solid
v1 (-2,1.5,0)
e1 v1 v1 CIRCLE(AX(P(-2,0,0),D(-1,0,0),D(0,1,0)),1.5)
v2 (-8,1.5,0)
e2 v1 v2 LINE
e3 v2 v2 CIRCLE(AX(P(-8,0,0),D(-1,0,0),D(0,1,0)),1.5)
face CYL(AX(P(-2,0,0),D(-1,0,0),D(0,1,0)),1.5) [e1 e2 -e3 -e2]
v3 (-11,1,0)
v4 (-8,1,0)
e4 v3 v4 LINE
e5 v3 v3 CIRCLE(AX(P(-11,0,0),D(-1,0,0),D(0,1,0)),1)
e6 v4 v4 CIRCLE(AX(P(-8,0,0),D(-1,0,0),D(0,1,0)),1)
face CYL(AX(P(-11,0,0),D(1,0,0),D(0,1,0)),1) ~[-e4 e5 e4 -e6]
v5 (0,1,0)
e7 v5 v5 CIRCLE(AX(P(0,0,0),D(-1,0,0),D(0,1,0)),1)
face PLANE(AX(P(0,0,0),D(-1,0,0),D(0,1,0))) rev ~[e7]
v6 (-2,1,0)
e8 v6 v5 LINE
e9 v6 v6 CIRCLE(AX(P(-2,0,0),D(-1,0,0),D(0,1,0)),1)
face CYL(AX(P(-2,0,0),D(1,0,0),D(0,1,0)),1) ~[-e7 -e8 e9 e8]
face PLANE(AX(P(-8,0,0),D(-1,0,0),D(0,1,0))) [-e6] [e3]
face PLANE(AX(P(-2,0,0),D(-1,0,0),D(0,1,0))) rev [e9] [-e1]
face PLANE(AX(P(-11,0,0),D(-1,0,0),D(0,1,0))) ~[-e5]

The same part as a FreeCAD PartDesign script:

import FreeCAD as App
import Part
import Sketcher
from FreeCAD import Vector


def add_polygon(sketch, points):
    """Adds a closed chain of lines whose ends are joined by coincident constraints."""
    first, n = sketch.GeometryCount, len(points)
    for a, b in zip(points, points[1:] + points[:1]):
        sketch.addGeometry(Part.LineSegment(App.Vector(*a, 0), App.Vector(*b, 0)), False)
    for i in range(n):
        sketch.addConstraint(Sketcher.Constraint("Coincident", first + i, 2, first + (i + 1) % n, 1))

doc = App.newDocument("Part")
body = doc.addObject("PartDesign::Body", "Body")

sketch1 = body.newObject("Sketcher::SketchObject", "Sketch")
sketch1.AttachmentSupport = (doc.getObject("XY_Plane"), [""])
sketch1.MapMode = "FlatFace"
add_polygon(sketch1, [(0, 0), (0, 1), (-2, 1), (-2, 1.5), (-8, 1.5), (-8, 1), (-11, 1), (-11, 0)])
sketch1.addConstraint(Sketcher.Constraint("Vertical", 0))
sketch1.addConstraint(Sketcher.Constraint("Horizontal", 1))
sketch1.addConstraint(Sketcher.Constraint("Vertical", 2))
sketch1.addConstraint(Sketcher.Constraint("Horizontal", 3))
sketch1.addConstraint(Sketcher.Constraint("Vertical", 4))
sketch1.addConstraint(Sketcher.Constraint("Horizontal", 5))
sketch1.addConstraint(Sketcher.Constraint("Vertical", 6))
sketch1.addConstraint(Sketcher.Constraint("Horizontal", 7))
sketch1.addConstraint(Sketcher.Constraint("Coincident", 7, 2, -1, 1))
sketch1.addConstraint(Sketcher.Constraint("Horizontal", 1, 2, 4, 2))
sketch1.addConstraint(Sketcher.Constraint("DistanceX", 1, 2, 1, 1, 2.0))
sketch1.addConstraint(Sketcher.Constraint("DistanceX", 3, 2, 3, 1, 6.0))
sketch1.addConstraint(Sketcher.Constraint("DistanceX", 5, 2, 5, 1, 3.0))
sketch1.addConstraint(Sketcher.Constraint("DistanceY", 0, 1, 0, 2, 1.0))
sketch1.addConstraint(Sketcher.Constraint("DistanceY", 2, 1, 2, 2, 0.5))
revolution = body.newObject("PartDesign::Revolution", "Revolution")
revolution.Profile = sketch1
revolution.ReferenceAxis = (sketch1, ["H_Axis"])
revolution.Angle = 360

doc.recompute()
